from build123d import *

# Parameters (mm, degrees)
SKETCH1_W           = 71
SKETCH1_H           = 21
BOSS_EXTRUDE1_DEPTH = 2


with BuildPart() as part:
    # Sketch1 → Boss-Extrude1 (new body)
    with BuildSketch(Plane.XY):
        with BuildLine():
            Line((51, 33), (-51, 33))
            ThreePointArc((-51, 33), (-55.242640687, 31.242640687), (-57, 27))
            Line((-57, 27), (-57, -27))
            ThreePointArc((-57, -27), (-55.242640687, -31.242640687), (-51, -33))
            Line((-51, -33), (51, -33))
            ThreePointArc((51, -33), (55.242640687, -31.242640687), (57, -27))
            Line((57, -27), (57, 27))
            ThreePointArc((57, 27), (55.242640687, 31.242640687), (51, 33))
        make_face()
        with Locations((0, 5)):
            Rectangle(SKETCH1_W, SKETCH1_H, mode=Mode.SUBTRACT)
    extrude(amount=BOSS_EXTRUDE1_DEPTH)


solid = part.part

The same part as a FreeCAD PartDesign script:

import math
import FreeCAD as App
import Part
import Sketcher
from FreeCAD import Vector
Q = App.Units.Quantity

doc = App.newDocument("Part")
body = doc.addObject("PartDesign::Body", "Body")

# Sketch on XY plane
sketch1 = body.newObject("Sketcher::SketchObject", "Sketch")
sketch1.AttachmentSupport = (doc.getObject("XY_Plane"), [""])
sketch1.MapMode = "FlatFace"
sketch1.addGeometry([
    Part.LineSegment(Vector(51, 33, 0), Vector(-51, 33, 0)),  # 0
    Part.ArcOfCircle(Part.Circle(Vector(-51, 27, 0), Vector(0, 0, 1), 6), math.radians(90), math.radians(180)),  # 1
    Part.LineSegment(Vector(-57, 27, 0), Vector(-57, -27, 0)),  # 2
    Part.ArcOfCircle(Part.Circle(Vector(-51, -27, 0), Vector(0, 0, 1), 6), math.radians(180), math.radians(270)),  # 3
    Part.LineSegment(Vector(-51, -33, 0), Vector(51, -33, 0)),  # 4
    Part.ArcOfCircle(Part.Circle(Vector(51, -27, 0), Vector(0, 0, 1), 6), math.radians(-90), math.radians(0)),  # 5
    Part.LineSegment(Vector(57, -27, 0), Vector(57, 27, 0)),  # 6
    Part.ArcOfCircle(Part.Circle(Vector(51, 27, 0), Vector(0, 0, 1), 6), math.radians(0), math.radians(90)),  # 7
    Part.LineSegment(Vector(36, -6, 0), Vector(-36, -6, 0)),  # 8
    Part.LineSegment(Vector(-36, -6, 0), Vector(-36, 16, 0)),  # 9
    Part.LineSegment(Vector(-36, 16, 0), Vector(36, 16, 0)),  # 10
    Part.LineSegment(Vector(36, 16, 0), Vector(36, -6, 0)),  # 11
], False)
sketch1.addConstraint([
    Sketcher.Constraint("Tangent", 0, 2, 1, 1),
    Sketcher.Constraint("Tangent", 1, 2, 2, 1),
    Sketcher.Constraint("Tangent", 2, 2, 3, 1),
    Sketcher.Constraint("Tangent", 3, 2, 4, 1),
    Sketcher.Constraint("Tangent", 4, 2, 5, 1),
    Sketcher.Constraint("Tangent", 5, 2, 6, 1),
    Sketcher.Constraint("Tangent", 6, 2, 7, 1),
    Sketcher.Constraint("Tangent", 7, 2, 0, 1),
    Sketcher.Constraint("Coincident", 8, 2, 9, 1),
    Sketcher.Constraint("Coincident", 9, 2, 10, 1),
    Sketcher.Constraint("Coincident", 10, 2, 11, 1),
    Sketcher.Constraint("Coincident", 11, 2, 8, 1),
    Sketcher.Constraint("Horizontal", 0),
    Sketcher.Constraint("Vertical", 2),
    Sketcher.Constraint("Horizontal", 4),
    Sketcher.Constraint("Vertical", 6),
    Sketcher.Constraint("Horizontal", 8),
    Sketcher.Constraint("Vertical", 9),
    Sketcher.Constraint("Horizontal", 10),
    Sketcher.Constraint("Vertical", 11),
    Sketcher.Constraint("Equal", 1, 3),
    Sketcher.Constraint("Equal", 3, 5),
    Sketcher.Constraint("Equal", 5, 7),
    Sketcher.Constraint("Symmetric", 1, 3, 5, 3, -1, 1),
    Sketcher.Constraint("Radius", 1, Q("6 mm")),
    Sketcher.Constraint("DistanceX", 0, 2, 0, 1, Q("102 mm")),
    Sketcher.Constraint("DistanceX", 8, 2, 8, 1, Q("71 mm")),
    Sketcher.Constraint("DistanceY", 2, 2, 2, 1, Q("54 mm")),
    Sketcher.Constraint("DistanceY", 9, 1, 9, 2, Q("21 mm")),
    Sketcher.Constraint("DistanceX", 8, 2, -1, 1, Q("35.5 mm")),
    Sketcher.Constraint("DistanceY", 8, 2, -1, 1, Q("5.5 mm")),
])
pad1 = body.newObject("PartDesign::Pad", "Pad")
pad1.Profile = sketch1
pad1.Length = 2

doc.recompute()
